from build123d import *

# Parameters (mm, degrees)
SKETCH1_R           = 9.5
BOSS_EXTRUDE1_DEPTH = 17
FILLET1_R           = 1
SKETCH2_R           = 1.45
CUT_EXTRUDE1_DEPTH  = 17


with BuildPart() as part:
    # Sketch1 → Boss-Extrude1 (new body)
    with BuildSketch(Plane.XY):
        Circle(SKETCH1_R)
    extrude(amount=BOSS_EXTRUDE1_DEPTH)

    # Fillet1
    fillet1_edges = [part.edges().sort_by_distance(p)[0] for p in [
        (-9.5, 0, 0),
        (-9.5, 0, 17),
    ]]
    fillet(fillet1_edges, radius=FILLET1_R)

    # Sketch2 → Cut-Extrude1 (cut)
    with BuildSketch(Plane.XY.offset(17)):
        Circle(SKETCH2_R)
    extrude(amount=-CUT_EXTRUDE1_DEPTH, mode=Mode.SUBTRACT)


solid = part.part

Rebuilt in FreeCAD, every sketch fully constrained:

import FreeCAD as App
import Part
import Sketcher
from FreeCAD import Vector
Q = App.Units.Quantity


def edges_at(feature, points):
    """Names of the edges that pass closest to the given points."""
    edges = feature.Shape.Edges
    near = lambda p: min(range(len(edges)), key=lambda i: edges[i].distToShape(Part.Vertex(*p))[0])
    return sorted({f"Edge{near(p) + 1}" for p in points})

doc = App.newDocument("Part")
body = doc.addObject("PartDesign::Body", "Body")

sketch1 = doc.addObject("Sketcher::SketchObject", "Sketch")
body.addObject(sketch1)
sketch1.AttachmentSupport = (doc.XY_Plane, [""])
sketch1.MapMode = "FlatFace"
sketch1.addGeometry(Part.Circle(Vector(0, 0, 0), Vector(0, 0, 1), 10), False)
sketch1.addConstraint(Sketcher.Constraint("Coincident", 0, 3, -1, 1))
sketch1.addConstraint(Sketcher.Constraint("Diameter", 0, Q("19 mm")))
pad1 = doc.addObject("PartDesign::Pad", "Pad")
body.addObject(pad1)
pad1.Profile = sketch1
pad1.Length = 17
doc.recompute()

fillet = doc.addObject("PartDesign::Fillet", "Fillet")
body.addObject(fillet)
fillet.Base = (pad1, edges_at(pad1, [(-9.5, 0, 0), (-9.5, 0, 17)]))
fillet.Radius = 1

sketch2 = doc.addObject("Sketcher::SketchObject", "Sketch001")
body.addObject(sketch2)
sketch2.AttachmentSupport = (doc.XY_Plane, [""])
sketch2.MapMode = "FlatFace"
sketch2.AttachmentOffset = App.Placement(Vector(0, 0, 17), App.Rotation())
sketch2.addGeometry(Part.Circle(Vector(0, 0, 0), Vector(0, 0, 1), 1.4), False)
sketch2.addConstraint(Sketcher.Constraint("Coincident", 0, 3, -1, 1))
sketch2.addConstraint(Sketcher.Constraint("Diameter", 0, Q("2.9 mm")))
pocket1 = doc.addObject("PartDesign::Pocket", "Pocket")
body.addObject(pocket1)
pocket1.Profile = sketch2
pocket1.Length = 17

doc.recompute()
